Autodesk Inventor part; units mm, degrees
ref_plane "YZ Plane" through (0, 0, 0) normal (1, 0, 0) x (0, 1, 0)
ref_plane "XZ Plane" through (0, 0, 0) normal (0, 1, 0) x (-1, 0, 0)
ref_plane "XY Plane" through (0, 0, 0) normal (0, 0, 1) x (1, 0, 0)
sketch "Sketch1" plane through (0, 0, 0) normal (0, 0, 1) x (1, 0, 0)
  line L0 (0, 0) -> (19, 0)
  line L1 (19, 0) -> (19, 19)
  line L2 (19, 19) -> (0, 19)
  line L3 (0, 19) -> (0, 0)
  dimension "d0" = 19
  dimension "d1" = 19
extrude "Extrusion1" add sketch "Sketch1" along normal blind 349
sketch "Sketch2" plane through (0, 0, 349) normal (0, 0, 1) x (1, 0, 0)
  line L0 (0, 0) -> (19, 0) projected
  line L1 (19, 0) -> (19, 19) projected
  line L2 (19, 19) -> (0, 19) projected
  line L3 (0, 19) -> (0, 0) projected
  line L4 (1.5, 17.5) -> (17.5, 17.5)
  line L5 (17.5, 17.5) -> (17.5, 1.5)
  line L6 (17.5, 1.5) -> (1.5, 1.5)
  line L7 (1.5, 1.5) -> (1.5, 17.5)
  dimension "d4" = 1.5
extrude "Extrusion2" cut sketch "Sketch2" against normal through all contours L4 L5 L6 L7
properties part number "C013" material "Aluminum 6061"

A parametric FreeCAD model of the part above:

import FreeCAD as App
import Part
import Sketcher
Q = App.Units.Quantity


def add_polygon(sketch, points):
    """Adds a closed chain of lines whose ends are joined by coincident constraints."""
    first, n = sketch.GeometryCount, len(points)
    for a, b in zip(points, points[1:] + points[:1]):
        sketch.addGeometry(Part.LineSegment(App.Vector(*a, 0), App.Vector(*b, 0)), False)
    for i in range(n):
        sketch.addConstraint(Sketcher.Constraint("Coincident", first + i, 2, first + (i + 1) % n, 1))

doc = App.newDocument("Part")
params = doc.addObject("Spreadsheet::Sheet", "Params")
for row, (alias, value) in enumerate([
    ("sketch1_width", "19 mm"),
    ("pad1_length", "349 mm"),
    ("sketch2_width", "16 mm"),
], start=1):
    params.set(f"A{row}", alias)
    params.set(f"B{row}", "=" + value)
    params.setAlias(f"B{row}", alias)

body = doc.addObject("PartDesign::Body", "Body")

# Sketch on XY plane
sketch1 = body.newObject("Sketcher::SketchObject", "Sketch")
sketch1.AttachmentSupport = (doc.getObject("XY_Plane"), [""])
sketch1.MapMode = "FlatFace"
add_polygon(sketch1, [(0, 19), (0, 0), (19, 0), (19, 19)])  # lines 0-3
sketch1.addConstraint([
    Sketcher.Constraint("Vertical", 0),
    Sketcher.Constraint("Horizontal", 1),
    Sketcher.Constraint("Vertical", 2),
    Sketcher.Constraint("Horizontal", 3),
    Sketcher.Constraint("Coincident", 0, 2, -1, 1),
    Sketcher.Constraint("Equal", 3, 0),
    Sketcher.Constraint("DistanceX", 1, 1, 1, 2, Q("19 mm")),
])
sketch1.setExpression("Constraints[10]", "Params.sketch1_width")
pad1 = body.newObject("PartDesign::Pad", "Pad")
pad1.Profile = sketch1
pad1.setExpression("Length", "Params.pad1_length")

# Sketch on XY plane
sketch2 = body.newObject("Sketcher::SketchObject", "Sketch001")
sketch2.AttachmentSupport = (doc.getObject("XY_Plane"), [""])
sketch2.MapMode = "FlatFace"
sketch2.AttachmentOffset = App.Placement(App.Vector(0, 0, 349), App.Rotation())
add_polygon(sketch2, [(18, 18), (2, 18), (2, 2), (18, 2)])  # lines 0-3
sketch2.addConstraint([
    Sketcher.Constraint("Horizontal", 0),
    Sketcher.Constraint("Vertical", 1),
    Sketcher.Constraint("Horizontal", 2),
    Sketcher.Constraint("Vertical", 3),
    Sketcher.Constraint("Equal", 2, 1),
    Sketcher.Constraint("DistanceX", -1, 1, 0, 2, Q("1.5 mm")),
    Sketcher.Constraint("DistanceY", -1, 1, 1, 2, Q("1.5 mm")),
    Sketcher.Constraint("DistanceX", 0, 2, 0, 1, Q("16 mm")),
])
sketch2.setExpression("Constraints[11]", "Params.sketch2_width")
pocket1 = body.newObject("PartDesign::Pocket", "Pocket")
pocket1.Profile = sketch2
pocket1.Type = "ThroughAll"

doc.recompute()
